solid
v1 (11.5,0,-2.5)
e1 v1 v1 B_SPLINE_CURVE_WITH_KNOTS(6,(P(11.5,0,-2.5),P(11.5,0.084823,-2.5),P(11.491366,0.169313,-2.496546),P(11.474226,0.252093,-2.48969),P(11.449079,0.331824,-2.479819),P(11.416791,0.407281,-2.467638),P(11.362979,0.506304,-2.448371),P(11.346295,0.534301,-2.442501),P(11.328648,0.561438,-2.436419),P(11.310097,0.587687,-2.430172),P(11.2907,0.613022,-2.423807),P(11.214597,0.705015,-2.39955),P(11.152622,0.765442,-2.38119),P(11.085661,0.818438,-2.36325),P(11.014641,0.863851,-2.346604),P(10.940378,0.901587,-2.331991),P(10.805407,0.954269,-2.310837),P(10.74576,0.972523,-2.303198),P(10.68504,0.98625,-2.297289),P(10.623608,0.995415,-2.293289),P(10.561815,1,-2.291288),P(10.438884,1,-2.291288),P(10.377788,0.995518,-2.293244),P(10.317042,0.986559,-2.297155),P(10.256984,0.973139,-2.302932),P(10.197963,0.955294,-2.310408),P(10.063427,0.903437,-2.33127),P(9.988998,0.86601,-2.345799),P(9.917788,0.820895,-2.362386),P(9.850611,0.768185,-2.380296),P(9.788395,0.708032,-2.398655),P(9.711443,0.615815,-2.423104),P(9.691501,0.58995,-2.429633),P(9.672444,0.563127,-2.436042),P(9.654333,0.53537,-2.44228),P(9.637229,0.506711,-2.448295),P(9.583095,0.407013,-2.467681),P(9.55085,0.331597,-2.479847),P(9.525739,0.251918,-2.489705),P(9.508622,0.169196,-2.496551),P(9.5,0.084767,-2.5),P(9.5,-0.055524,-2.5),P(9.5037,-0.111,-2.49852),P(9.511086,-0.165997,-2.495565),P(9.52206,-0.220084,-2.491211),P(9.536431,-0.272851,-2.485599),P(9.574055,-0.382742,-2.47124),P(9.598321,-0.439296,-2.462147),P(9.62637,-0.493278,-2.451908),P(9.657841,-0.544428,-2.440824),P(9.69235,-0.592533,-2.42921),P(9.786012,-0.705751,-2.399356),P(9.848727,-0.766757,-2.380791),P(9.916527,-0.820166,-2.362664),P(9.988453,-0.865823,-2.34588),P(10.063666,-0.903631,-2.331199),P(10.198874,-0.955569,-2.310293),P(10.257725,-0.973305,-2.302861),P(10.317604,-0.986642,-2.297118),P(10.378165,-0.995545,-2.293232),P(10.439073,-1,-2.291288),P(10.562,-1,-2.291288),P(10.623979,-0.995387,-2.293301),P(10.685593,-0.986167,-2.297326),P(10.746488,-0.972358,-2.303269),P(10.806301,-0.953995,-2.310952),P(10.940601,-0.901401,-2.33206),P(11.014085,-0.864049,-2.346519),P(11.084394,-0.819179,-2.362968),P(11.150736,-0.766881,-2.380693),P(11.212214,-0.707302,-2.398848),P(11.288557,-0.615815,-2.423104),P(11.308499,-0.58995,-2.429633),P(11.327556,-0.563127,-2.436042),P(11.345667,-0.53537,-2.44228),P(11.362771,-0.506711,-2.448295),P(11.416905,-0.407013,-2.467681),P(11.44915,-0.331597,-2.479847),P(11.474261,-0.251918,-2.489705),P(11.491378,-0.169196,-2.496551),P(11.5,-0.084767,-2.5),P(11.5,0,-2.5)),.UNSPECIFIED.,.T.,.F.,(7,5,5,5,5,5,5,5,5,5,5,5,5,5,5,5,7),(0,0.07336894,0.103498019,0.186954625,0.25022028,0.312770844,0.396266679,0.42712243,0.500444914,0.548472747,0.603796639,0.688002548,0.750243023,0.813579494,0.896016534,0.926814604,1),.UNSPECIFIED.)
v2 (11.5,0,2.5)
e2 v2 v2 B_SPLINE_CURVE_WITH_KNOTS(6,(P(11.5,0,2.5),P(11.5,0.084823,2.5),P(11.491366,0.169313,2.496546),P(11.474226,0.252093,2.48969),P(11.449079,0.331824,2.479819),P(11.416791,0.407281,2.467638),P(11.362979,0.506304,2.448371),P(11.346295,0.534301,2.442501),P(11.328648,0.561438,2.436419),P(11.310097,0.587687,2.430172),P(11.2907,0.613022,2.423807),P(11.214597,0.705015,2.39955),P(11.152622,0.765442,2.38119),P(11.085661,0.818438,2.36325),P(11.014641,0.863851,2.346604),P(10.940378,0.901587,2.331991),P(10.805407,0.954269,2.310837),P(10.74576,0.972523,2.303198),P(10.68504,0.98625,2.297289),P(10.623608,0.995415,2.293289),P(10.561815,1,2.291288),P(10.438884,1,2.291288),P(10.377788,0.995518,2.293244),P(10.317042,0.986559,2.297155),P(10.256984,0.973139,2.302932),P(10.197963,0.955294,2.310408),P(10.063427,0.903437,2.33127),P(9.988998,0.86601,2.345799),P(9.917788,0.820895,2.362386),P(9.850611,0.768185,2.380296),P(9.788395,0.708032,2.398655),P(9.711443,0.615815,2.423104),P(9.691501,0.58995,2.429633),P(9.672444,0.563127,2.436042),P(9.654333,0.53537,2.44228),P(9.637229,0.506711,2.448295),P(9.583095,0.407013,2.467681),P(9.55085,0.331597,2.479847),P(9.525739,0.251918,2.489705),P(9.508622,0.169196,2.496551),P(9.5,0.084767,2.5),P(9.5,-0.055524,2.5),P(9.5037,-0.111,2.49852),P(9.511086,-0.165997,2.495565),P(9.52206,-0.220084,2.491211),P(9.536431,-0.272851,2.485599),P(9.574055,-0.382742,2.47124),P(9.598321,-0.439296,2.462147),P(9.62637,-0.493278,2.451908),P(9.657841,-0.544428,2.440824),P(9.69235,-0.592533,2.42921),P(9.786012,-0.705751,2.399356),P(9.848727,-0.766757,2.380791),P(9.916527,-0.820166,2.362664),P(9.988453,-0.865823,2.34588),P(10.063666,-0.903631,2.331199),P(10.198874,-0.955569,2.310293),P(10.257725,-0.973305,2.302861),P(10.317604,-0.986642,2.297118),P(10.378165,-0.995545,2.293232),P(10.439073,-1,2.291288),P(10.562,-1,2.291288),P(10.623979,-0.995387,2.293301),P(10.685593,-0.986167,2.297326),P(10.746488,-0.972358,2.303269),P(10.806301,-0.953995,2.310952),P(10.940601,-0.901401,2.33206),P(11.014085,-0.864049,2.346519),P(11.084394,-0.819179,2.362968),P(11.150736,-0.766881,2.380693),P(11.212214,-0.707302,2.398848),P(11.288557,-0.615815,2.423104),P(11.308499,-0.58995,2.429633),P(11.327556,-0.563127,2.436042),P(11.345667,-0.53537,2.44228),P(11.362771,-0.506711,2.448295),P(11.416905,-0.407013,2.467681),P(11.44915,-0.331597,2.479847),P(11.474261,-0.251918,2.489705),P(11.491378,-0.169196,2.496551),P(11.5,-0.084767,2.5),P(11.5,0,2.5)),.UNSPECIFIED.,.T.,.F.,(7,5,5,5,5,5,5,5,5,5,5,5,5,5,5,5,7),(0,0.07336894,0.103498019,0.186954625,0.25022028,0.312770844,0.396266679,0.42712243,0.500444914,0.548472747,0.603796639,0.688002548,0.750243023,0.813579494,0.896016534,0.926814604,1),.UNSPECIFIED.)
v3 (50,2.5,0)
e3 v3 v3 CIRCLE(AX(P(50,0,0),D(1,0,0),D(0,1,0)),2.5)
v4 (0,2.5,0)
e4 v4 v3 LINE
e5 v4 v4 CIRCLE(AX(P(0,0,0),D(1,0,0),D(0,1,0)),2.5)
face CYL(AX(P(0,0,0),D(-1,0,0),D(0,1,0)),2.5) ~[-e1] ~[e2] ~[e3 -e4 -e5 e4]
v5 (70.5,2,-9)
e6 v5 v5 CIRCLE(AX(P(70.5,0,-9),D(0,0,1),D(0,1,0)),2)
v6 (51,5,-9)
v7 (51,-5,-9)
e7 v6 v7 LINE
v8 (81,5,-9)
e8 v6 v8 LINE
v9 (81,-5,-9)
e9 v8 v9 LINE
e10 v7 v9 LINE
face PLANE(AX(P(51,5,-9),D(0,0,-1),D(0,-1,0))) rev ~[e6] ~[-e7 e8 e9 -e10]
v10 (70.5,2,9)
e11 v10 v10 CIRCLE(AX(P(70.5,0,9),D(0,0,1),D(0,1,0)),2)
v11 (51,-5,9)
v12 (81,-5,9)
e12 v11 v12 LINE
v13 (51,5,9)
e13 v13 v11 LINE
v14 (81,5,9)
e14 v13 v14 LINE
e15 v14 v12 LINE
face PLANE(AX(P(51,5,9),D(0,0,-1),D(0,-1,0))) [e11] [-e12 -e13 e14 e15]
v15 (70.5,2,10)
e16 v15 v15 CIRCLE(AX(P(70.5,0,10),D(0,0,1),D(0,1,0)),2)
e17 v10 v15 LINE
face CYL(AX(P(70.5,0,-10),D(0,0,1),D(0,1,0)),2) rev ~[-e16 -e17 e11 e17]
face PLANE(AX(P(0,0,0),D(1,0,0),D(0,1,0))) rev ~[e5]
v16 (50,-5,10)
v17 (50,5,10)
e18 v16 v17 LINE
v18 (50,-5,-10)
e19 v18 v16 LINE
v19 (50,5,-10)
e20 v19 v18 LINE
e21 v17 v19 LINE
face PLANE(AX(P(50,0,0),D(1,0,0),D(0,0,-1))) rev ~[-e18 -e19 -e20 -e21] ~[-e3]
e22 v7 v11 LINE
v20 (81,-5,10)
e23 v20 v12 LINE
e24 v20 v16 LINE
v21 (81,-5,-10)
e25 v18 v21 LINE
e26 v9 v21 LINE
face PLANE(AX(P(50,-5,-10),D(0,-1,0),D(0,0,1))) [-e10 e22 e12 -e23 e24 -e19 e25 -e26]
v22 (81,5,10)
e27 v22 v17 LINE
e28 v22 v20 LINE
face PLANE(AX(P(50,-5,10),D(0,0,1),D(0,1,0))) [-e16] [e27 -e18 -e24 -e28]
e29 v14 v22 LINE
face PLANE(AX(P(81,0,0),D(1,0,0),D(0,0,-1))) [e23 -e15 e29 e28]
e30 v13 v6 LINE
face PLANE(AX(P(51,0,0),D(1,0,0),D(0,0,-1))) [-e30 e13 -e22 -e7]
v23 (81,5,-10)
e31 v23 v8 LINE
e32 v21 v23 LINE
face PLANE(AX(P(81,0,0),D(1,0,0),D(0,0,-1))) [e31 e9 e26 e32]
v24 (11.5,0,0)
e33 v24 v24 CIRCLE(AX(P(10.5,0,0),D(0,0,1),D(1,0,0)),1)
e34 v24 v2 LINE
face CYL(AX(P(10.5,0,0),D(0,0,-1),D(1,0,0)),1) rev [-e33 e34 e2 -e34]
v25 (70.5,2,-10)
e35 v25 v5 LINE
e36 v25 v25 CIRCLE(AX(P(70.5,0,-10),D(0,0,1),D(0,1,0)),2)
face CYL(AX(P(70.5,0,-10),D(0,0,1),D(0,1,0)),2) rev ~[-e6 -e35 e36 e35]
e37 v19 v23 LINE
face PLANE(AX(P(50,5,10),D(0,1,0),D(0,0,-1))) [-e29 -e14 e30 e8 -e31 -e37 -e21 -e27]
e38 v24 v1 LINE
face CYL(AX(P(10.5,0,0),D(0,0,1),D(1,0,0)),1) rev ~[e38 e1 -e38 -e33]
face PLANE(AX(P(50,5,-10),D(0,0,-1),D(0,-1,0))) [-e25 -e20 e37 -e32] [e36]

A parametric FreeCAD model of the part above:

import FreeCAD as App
import Part
import Sketcher

V = App.Vector


def add_polygon(sketch, points):
    """Adds a closed chain of lines whose ends are joined by coincident constraints."""
    first, n = sketch.GeometryCount, len(points)
    for a, b in zip(points, points[1:] + points[:1]):
        sketch.addGeometry(Part.LineSegment(App.Vector(*a, 0), App.Vector(*b, 0)), False)
    for i in range(n):
        sketch.addConstraint(Sketcher.Constraint("Coincident", first + i, 2, first + (i + 1) % n, 1))

doc = App.newDocument("Part")
body = doc.addObject("PartDesign::Body", "Body")

# Sketch on YZ plane
sketch1 = body.newObject("Sketcher::SketchObject", "Sketch")
sketch1.AttachmentSupport = (doc.getObject("YZ_Plane"), [""])
sketch1.MapMode = "FlatFace"
sketch1.addGeometry(Part.Circle(V(0, 0, 0), V(0, 0, 1), 2.5), False)
sketch1.addConstraint([
    Sketcher.Constraint("Coincident", 0, 3, -1, 1),
    Sketcher.Constraint("Diameter", 0, 5.0),
])
pad1 = body.newObject("PartDesign::Pad", "Pad")
pad1.Profile = sketch1
pad1.Length = 50

# Sketch on YZ plane
sketch2 = body.newObject("Sketcher::SketchObject", "Sketch001")
sketch2.AttachmentSupport = (doc.getObject("YZ_Plane"), [""])
sketch2.MapMode = "FlatFace"
sketch2.AttachmentOffset = App.Placement(V(0, 0, 50), App.Rotation())
add_polygon(sketch2, [(-5, 10), (-5, -10), (5, -10), (5, 10)])  # lines 0-3
sketch2.addConstraint([
    Sketcher.Constraint("Vertical", 0),
    Sketcher.Constraint("Horizontal", 1),
    Sketcher.Constraint("Vertical", 2),
    Sketcher.Constraint("Horizontal", 3),
    Sketcher.Constraint("Symmetric", 0, 2, 2, 2, -1, 1),
    Sketcher.Constraint("DistanceX", 1, 1, 1, 2, 10.0),
    Sketcher.Constraint("DistanceY", 0, 2, 0, 1, 20.0),
])
pad2 = body.newObject("PartDesign::Pad", "Pad001")
pad2.Profile = sketch2
pad2.Length = 1

# Sketch on YZ plane
sketch3 = body.newObject("Sketcher::SketchObject", "Sketch002")
sketch3.AttachmentSupport = (doc.getObject("YZ_Plane"), [""])
sketch3.MapMode = "FlatFace"
sketch3.AttachmentOffset = App.Placement(V(0, 0, 51), App.Rotation())
add_polygon(sketch3, [(5, 10), (-5, 10), (-5, 9), (5, 9)])  # lines 0-3
add_polygon(sketch3, [(5, -9), (-5, -9), (-5, -10), (5, -10)])  # lines 4-7
sketch3.addConstraint([
    Sketcher.Constraint("Horizontal", 0),
    Sketcher.Constraint("Vertical", 1),
    Sketcher.Constraint("Horizontal", 2),
    Sketcher.Constraint("Vertical", 3),
    Sketcher.Constraint("Horizontal", 4),
    Sketcher.Constraint("Vertical", 5),
    Sketcher.Constraint("Horizontal", 6),
    Sketcher.Constraint("Vertical", 7),
    Sketcher.Constraint("Symmetric", 2, 2, 4, 2, -1, 1),
    Sketcher.Constraint("Symmetric", 0, 2, 6, 2, -1, 1),
    Sketcher.Constraint("Vertical", 1, 2, 4, 2),
    Sketcher.Constraint("DistanceY", 1, 2, 1, 1, 1.0),
    Sketcher.Constraint("DistanceX", 0, 2, 0, 1, 10.0),
    Sketcher.Constraint("DistanceY", -1, 1, 0, 2, 10.0),
])
pad3 = body.newObject("PartDesign::Pad", "Pad002")
pad3.Profile = sketch3
pad3.Length = 30

# Sketch on XY plane
sketch4 = body.newObject("Sketcher::SketchObject", "Sketch003")
sketch4.AttachmentSupport = (doc.getObject("XY_Plane"), [""])
sketch4.MapMode = "FlatFace"
sketch4.AttachmentOffset = App.Placement(V(0, 0, -10), App.Rotation())
sketch4.addGeometry(Part.Circle(V(70.5, 0, 0), V(0, 0, 1), 2), False)
sketch4.addConstraint([
    Sketcher.Constraint("PointOnObject", 0, 3, -1),
    Sketcher.Constraint("Diameter", 0, 4.0),
    Sketcher.Constraint("DistanceX", -1, 1, 0, 3, 70.5),
])
doc.recompute()
hole = body.newObject("PartDesign::Hole", "Hole")
hole.Profile = sketch4
hole.ThreadType = "None"
hole.Diameter = 4
hole.DepthType = "ThroughAll"
hole.Reversed = True

# Sketch on XY plane
sketch5 = body.newObject("Sketcher::SketchObject", "Sketch004")
sketch5.AttachmentSupport = (doc.getObject("XY_Plane"), [""])
sketch5.MapMode = "FlatFace"
sketch5.addGeometry(Part.Circle(V(10.5, 0, 0), V(0, 0, 1), 1), False)
sketch5.addConstraint([
    Sketcher.Constraint("PointOnObject", 0, 3, -1),
    Sketcher.Constraint("Diameter", 0, 2.0),
    Sketcher.Constraint("DistanceX", -1, 1, 0, 3, 10.5),
])
pocket1 = body.newObject("PartDesign::Pocket", "Pocket")
pocket1.Profile = sketch5
pocket1.Length = 10
pocket1.Midplane = True

doc.recompute()
